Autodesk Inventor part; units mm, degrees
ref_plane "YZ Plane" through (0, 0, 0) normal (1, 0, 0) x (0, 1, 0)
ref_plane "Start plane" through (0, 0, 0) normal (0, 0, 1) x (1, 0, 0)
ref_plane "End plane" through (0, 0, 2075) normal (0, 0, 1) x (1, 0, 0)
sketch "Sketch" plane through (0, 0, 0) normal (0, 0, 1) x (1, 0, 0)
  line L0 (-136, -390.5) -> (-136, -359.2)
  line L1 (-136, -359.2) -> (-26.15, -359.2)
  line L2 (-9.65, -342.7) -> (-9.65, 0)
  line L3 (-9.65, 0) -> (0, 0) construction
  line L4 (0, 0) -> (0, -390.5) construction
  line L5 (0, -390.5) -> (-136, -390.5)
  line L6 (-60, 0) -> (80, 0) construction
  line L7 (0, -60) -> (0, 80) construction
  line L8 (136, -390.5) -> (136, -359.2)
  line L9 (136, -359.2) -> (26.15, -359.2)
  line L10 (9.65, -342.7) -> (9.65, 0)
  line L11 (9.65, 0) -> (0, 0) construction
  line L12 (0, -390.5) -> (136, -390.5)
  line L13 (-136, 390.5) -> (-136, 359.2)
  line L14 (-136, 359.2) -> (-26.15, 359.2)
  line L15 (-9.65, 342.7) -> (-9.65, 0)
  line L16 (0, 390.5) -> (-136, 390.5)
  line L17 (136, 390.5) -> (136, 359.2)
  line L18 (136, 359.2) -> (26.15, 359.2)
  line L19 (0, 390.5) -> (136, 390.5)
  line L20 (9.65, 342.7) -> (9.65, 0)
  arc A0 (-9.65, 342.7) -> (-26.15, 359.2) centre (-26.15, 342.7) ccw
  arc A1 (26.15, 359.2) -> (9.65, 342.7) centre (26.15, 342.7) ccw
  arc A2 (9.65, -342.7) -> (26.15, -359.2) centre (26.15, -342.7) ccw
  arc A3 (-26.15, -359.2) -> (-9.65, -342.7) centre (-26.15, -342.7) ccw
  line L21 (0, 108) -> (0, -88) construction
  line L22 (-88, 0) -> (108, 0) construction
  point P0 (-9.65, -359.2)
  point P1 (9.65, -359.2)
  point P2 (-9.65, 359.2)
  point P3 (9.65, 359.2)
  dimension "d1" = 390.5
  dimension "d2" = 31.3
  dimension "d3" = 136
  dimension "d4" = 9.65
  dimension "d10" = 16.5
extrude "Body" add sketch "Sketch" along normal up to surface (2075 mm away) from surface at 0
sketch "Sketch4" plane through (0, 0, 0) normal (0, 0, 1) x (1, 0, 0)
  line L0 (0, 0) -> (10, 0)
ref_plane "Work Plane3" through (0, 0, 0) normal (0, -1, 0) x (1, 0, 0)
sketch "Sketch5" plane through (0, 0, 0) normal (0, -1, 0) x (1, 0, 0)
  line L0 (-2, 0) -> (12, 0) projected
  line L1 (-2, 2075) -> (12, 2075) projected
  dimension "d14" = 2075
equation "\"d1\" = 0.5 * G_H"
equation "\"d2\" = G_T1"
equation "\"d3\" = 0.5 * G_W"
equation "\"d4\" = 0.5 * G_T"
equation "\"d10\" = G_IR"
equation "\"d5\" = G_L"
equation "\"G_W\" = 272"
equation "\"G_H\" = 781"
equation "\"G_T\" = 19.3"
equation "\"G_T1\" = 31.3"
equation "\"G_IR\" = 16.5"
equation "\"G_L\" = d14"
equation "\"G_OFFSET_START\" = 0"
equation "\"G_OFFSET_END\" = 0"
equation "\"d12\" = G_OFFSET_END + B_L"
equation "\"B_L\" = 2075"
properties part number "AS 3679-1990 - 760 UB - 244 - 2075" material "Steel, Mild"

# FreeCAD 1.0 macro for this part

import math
import FreeCAD as App
import Part
import Sketcher
Q = App.Units.Quantity

doc = App.newDocument("Part")
body = doc.addObject("PartDesign::Body", "Body")

# Sketch on XY plane
sketch1 = body.newObject("Sketcher::SketchObject", "Sketch")
sketch1.AttachmentSupport = (doc.getObject("XY_Plane"), [""])
sketch1.MapMode = "FlatFace"
sketch1.addGeometry([
    Part.LineSegment(App.Vector(-136, -359.2, 0), App.Vector(-136, -390.5, 0)),  # 0
    Part.LineSegment(App.Vector(-136, -390.5, 0), App.Vector(136, -390.5, 0)),  # 1
    Part.LineSegment(App.Vector(136, -390.5, 0), App.Vector(136, -359.2, 0)),  # 2
    Part.LineSegment(App.Vector(136, -359.2, 0), App.Vector(26.15, -359.2, 0)),  # 3
    Part.ArcOfCircle(Part.Circle(App.Vector(26.15, -342.7, 0), App.Vector(0, 0, 1), 16.5), math.radians(180), math.radians(270)),  # 4
    Part.LineSegment(App.Vector(9.65, -342.7, 0), App.Vector(9.65, 342.7, 0)),  # 5
    Part.ArcOfCircle(Part.Circle(App.Vector(26.15, 342.7, 0), App.Vector(0, 0, 1), 16.5), math.radians(90), math.radians(180)),  # 6
    Part.LineSegment(App.Vector(26.15, 359.2, 0), App.Vector(136, 359.2, 0)),  # 7
    Part.LineSegment(App.Vector(136, 359.2, 0), App.Vector(136, 390.5, 0)),  # 8
    Part.LineSegment(App.Vector(136, 390.5, 0), App.Vector(-136, 390.5, 0)),  # 9
    Part.LineSegment(App.Vector(-136, 390.5, 0), App.Vector(-136, 359.2, 0)),  # 10
    Part.LineSegment(App.Vector(-136, 359.2, 0), App.Vector(-26.15, 359.2, 0)),  # 11
    Part.ArcOfCircle(Part.Circle(App.Vector(-26.15, 342.7, 0), App.Vector(0, 0, 1), 16.5), math.radians(0), math.radians(90)),  # 12
    Part.LineSegment(App.Vector(-9.65, 342.7, 0), App.Vector(-9.65, -342.7, 0)),  # 13
    Part.ArcOfCircle(Part.Circle(App.Vector(-26.15, -342.7, 0), App.Vector(0, 0, 1), 16.5), math.radians(-90), math.radians(0)),  # 14
    Part.LineSegment(App.Vector(-26.15, -359.2, 0), App.Vector(-136, -359.2, 0)),  # 15
], False)
sketch1.addConstraint([
    Sketcher.Constraint("Coincident", 0, 2, 1, 1),
    Sketcher.Constraint("Coincident", 1, 2, 2, 1),
    Sketcher.Constraint("Coincident", 2, 2, 3, 1),
    Sketcher.Constraint("Tangent", 3, 2, 4, 2),
    Sketcher.Constraint("Tangent", 4, 1, 5, 1),
    Sketcher.Constraint("Tangent", 5, 2, 6, 2),
    Sketcher.Constraint("Tangent", 6, 1, 7, 1),
    Sketcher.Constraint("Coincident", 7, 2, 8, 1),
    Sketcher.Constraint("Coincident", 8, 2, 9, 1),
    Sketcher.Constraint("Coincident", 9, 2, 10, 1),
    Sketcher.Constraint("Coincident", 10, 2, 11, 1),
    Sketcher.Constraint("Tangent", 11, 2, 12, 2),
    Sketcher.Constraint("Tangent", 12, 1, 13, 1),
    Sketcher.Constraint("Tangent", 13, 2, 14, 2),
    Sketcher.Constraint("Tangent", 14, 1, 15, 1),
    Sketcher.Constraint("Coincident", 15, 2, 0, 1),
    Sketcher.Constraint("Vertical", 0),
    Sketcher.Constraint("Horizontal", 1),
    Sketcher.Constraint("Vertical", 2),
    Sketcher.Constraint("Horizontal", 3),
    Sketcher.Constraint("Vertical", 5),
    Sketcher.Constraint("Horizontal", 7),
    Sketcher.Constraint("Vertical", 8),
    Sketcher.Constraint("Horizontal", 9),
    Sketcher.Constraint("Vertical", 10),
    Sketcher.Constraint("Horizontal", 11),
    Sketcher.Constraint("Vertical", 13),
    Sketcher.Constraint("Horizontal", 15),
    Sketcher.Constraint("Equal", 4, 6),
    Sketcher.Constraint("Equal", 6, 12),
    Sketcher.Constraint("Equal", 12, 14),
    Sketcher.Constraint("Symmetric", 4, 3, 12, 3, -1, 1),
    Sketcher.Constraint("Symmetric", 0, 2, 8, 2, -1, 1),
    Sketcher.Constraint("Symmetric", 7, 2, 10, 2, -2),
    Sketcher.Constraint("Symmetric", 2, 2, 15, 2, -2),
    Sketcher.Constraint("Radius", 4, Q("16.5 mm")),
    Sketcher.Constraint("DistanceY", 0, 2, 0, 1, Q("31.3 mm")),
    Sketcher.Constraint("DistanceX", 0, 2, -1, 1, Q("136 mm")),
    Sketcher.Constraint("DistanceY", 0, 2, -1, 1, Q("390.5 mm")),
    Sketcher.Constraint("DistanceX", -1, 1, 4, 1, Q("9.65 mm")),
])
pad1 = body.newObject("PartDesign::Pad", "Pad")
pad1.Profile = sketch1
pad1.Length = 2075

doc.recompute()
